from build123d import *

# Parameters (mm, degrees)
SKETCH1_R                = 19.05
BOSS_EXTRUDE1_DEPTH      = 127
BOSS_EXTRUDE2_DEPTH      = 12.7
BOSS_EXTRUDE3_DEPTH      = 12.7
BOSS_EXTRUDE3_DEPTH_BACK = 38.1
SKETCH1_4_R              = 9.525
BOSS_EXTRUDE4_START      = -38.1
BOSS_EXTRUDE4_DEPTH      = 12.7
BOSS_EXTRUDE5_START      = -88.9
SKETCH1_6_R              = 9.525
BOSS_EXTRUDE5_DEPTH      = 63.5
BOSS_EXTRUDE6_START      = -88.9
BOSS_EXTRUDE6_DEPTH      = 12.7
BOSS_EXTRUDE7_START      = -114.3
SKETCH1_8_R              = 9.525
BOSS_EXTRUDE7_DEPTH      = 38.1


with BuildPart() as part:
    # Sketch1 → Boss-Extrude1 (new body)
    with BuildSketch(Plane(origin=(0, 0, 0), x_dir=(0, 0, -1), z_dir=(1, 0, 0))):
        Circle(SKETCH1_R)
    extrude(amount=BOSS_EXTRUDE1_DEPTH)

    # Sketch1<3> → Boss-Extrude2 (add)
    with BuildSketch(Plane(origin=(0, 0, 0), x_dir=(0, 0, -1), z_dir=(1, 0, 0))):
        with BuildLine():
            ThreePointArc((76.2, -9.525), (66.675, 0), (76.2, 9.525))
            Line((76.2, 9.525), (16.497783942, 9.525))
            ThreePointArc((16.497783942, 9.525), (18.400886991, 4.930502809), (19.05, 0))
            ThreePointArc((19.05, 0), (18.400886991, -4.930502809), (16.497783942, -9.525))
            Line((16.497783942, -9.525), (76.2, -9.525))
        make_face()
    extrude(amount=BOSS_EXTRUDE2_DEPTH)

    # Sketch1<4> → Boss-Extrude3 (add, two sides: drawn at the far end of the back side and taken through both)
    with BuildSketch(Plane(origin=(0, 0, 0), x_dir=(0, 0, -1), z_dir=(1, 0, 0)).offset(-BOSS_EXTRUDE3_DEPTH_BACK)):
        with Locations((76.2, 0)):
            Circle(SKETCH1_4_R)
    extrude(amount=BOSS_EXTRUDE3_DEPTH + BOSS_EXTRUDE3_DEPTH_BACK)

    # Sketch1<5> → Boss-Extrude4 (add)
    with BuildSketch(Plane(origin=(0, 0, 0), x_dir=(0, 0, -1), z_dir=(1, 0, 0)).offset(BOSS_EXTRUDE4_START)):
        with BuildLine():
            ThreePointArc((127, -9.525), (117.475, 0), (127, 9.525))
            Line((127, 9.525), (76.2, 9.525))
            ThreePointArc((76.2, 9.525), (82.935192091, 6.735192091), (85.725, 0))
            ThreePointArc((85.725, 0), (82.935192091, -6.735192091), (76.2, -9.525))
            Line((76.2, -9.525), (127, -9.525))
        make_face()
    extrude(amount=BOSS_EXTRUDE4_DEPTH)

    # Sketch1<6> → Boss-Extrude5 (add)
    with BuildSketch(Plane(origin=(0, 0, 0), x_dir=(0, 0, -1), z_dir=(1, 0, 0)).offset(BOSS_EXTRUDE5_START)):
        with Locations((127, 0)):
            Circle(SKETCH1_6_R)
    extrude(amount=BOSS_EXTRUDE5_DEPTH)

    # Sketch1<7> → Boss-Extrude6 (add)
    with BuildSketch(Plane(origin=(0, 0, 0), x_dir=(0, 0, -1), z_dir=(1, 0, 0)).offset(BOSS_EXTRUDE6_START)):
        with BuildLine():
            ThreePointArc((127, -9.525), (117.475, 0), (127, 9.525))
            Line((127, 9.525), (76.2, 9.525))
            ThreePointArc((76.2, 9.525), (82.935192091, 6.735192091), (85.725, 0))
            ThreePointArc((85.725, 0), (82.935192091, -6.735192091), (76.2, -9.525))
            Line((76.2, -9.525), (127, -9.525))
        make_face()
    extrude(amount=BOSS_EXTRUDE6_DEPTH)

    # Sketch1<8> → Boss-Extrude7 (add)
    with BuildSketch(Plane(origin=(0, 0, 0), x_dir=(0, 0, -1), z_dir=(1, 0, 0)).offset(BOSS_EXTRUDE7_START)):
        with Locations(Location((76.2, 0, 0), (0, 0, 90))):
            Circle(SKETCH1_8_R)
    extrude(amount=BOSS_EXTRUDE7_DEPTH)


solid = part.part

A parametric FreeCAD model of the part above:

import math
import FreeCAD as App
import Part
import Sketcher

V = App.Vector
Q = App.Units.Quantity

doc = App.newDocument("Part")
body = doc.addObject("PartDesign::Body", "Body")

sketch1 = doc.addObject("Sketcher::SketchObject", "Sketch")
body.addObject(sketch1)
sketch1.AttachmentSupport = (doc.YZ_Plane, [""])
sketch1.MapMode = "FlatFace"
sketch1.addGeometry(Part.Circle(V(0, 0, 0), V(0, 0, 1), 19.05), False)
sketch1.addConstraint([
    Sketcher.Constraint("Coincident", 0, 3, -1, 1),
    Sketcher.Constraint("Diameter", 0, Q("1.5 in")),
])
pad1 = doc.addObject("PartDesign::Pad", "Pad")
body.addObject(pad1)
pad1.Profile = sketch1
pad1.Length = Q("5 in")

sketch2 = doc.addObject("Sketcher::SketchObject", "Sketch001")
body.addObject(sketch2)
sketch2.AttachmentSupport = (doc.YZ_Plane, [""])
sketch2.MapMode = "FlatFace"
sketch2.addGeometry([
    Part.ArcOfCircle(Part.Circle(V(0, -76.2, 0), V(0, 0, 1), 9.525), math.radians(0), math.radians(180)),
    Part.LineSegment(V(9.525, -76.2, 0), V(9.525, -16.497784, 0)),
    Part.ArcOfCircle(Part.Circle(V(0, 0, 0), V(0, 0, 1), 19.05), math.radians(-90), math.radians(-60)),
    Part.ArcOfCircle(Part.Circle(V(0, 0, 0), V(0, 0, 1), 19.05), math.radians(-120), math.radians(-90)),
    Part.LineSegment(V(-9.525, -16.497784, 0), V(-9.525, -76.2, 0)),
], False)
sketch2.addConstraint([
    Sketcher.Constraint("Tangent", 0, 1, 1, 1),
    Sketcher.Constraint("Coincident", 1, 2, 2, 2),
    Sketcher.Constraint("Tangent", 2, 1, 3, 2),
    Sketcher.Constraint("Coincident", 3, 1, 4, 1),
    Sketcher.Constraint("Tangent", 4, 2, 0, 2),
    Sketcher.Constraint("Vertical", 1),
    Sketcher.Constraint("Vertical", 4),
    Sketcher.Constraint("Coincident", 2, 3, -1, 1),
    Sketcher.Constraint("Equal", 2, 3),
    Sketcher.Constraint("PointOnObject", 0, 3, -2),
    Sketcher.Constraint("PointOnObject", 2, 1, -2),
    Sketcher.Constraint("Radius", 2, Q("0.75 in")),
    Sketcher.Constraint("DistanceY", 0, 3, -1, 1, Q("3 in")),
    Sketcher.Constraint("Radius", 0, Q("0.375 in")),
])
pad2 = doc.addObject("PartDesign::Pad", "Pad001")
body.addObject(pad2)
pad2.Profile = sketch2
pad2.Length = Q("0.5 in")

sketch3 = doc.addObject("Sketcher::SketchObject", "Sketch002")
body.addObject(sketch3)
sketch3.AttachmentSupport = (doc.YZ_Plane, [""])
sketch3.MapMode = "FlatFace"
sketch3.addGeometry(Part.Circle(V(0, -76.2, 0), V(0, 0, 1), 9.525), False)
sketch3.addConstraint([
    Sketcher.Constraint("PointOnObject", 0, 3, -2),
    Sketcher.Constraint("Diameter", 0, Q("0.75 in")),
    Sketcher.Constraint("DistanceY", 0, 3, -1, 1, Q("3 in")),
])
pad3 = doc.addObject("PartDesign::Pad", "Pad002")
body.addObject(pad3)
pad3.Profile = sketch3
pad3.Type = "TwoLengths"
pad3.Length = Q("0.5 in")
pad3.Length2 = Q("1.5 in")

sketch4 = doc.addObject("Sketcher::SketchObject", "Sketch003")
body.addObject(sketch4)
sketch4.AttachmentSupport = (doc.YZ_Plane, [""])
sketch4.MapMode = "FlatFace"
sketch4.AttachmentOffset = App.Placement(V(0, 0, -1.5 * 25.4), App.Rotation())
sketch4.addGeometry([
    Part.ArcOfCircle(Part.Circle(V(0, -127, 0), V(0, 0, 1), 9.525), math.radians(0), math.radians(180)),
    Part.LineSegment(V(9.525, -127, 0), V(9.525, -76.2, 0)),
    Part.ArcOfCircle(Part.Circle(V(0, -76.2, 0), V(0, 0, 1), 9.525), math.radians(-90), math.radians(0)),
    Part.ArcOfCircle(Part.Circle(V(0, -76.2, 0), V(0, 0, 1), 9.525), math.radians(180), math.radians(270)),
    Part.LineSegment(V(-9.525, -76.2, 0), V(-9.525, -127, 0)),
], False)
sketch4.addConstraint([
    Sketcher.Constraint("Tangent", 0, 1, 1, 1),
    Sketcher.Constraint("Tangent", 1, 2, 2, 2),
    Sketcher.Constraint("Tangent", 2, 1, 3, 2),
    Sketcher.Constraint("Tangent", 3, 1, 4, 1),
    Sketcher.Constraint("Tangent", 4, 2, 0, 2),
    Sketcher.Constraint("Vertical", 1),
    Sketcher.Constraint("Vertical", 4),
    Sketcher.Constraint("Equal", 0, 2),
    Sketcher.Constraint("PointOnObject", 0, 3, -2),
    Sketcher.Constraint("PointOnObject", 2, 1, -2),
    Sketcher.Constraint("DistanceY", 1, 1, 1, 2, Q("2 in")),
    Sketcher.Constraint("DistanceY", 0, 3, -1, 1, Q("5 in")),
    Sketcher.Constraint("Radius", 0, Q("0.375 in")),
])
pad4 = doc.addObject("PartDesign::Pad", "Pad003")
body.addObject(pad4)
pad4.Profile = sketch4
pad4.Length = Q("0.5 in")

sketch5 = doc.addObject("Sketcher::SketchObject", "Sketch004")
body.addObject(sketch5)
sketch5.AttachmentSupport = (doc.YZ_Plane, [""])
sketch5.MapMode = "FlatFace"
sketch5.AttachmentOffset = App.Placement(V(0, 0, -3.5 * 25.4), App.Rotation())
sketch5.addGeometry(Part.Circle(V(0, -127, 0), V(0, 0, 1), 9.525), False)
sketch5.addConstraint([
    Sketcher.Constraint("PointOnObject", 0, 3, -2),
    Sketcher.Constraint("Diameter", 0, Q("0.75 in")),
    Sketcher.Constraint("DistanceY", 0, 3, -1, 1, Q("5 in")),
])
pad5 = doc.addObject("PartDesign::Pad", "Pad004")
body.addObject(pad5)
pad5.Profile = sketch5
pad5.Length = Q("2.5 in")

sketch6 = doc.addObject("Sketcher::SketchObject", "Sketch005")
body.addObject(sketch6)
sketch6.AttachmentSupport = (doc.YZ_Plane, [""])
sketch6.MapMode = "FlatFace"
sketch6.AttachmentOffset = App.Placement(V(0, 0, -3.5 * 25.4), App.Rotation())
sketch6.addGeometry([
    Part.ArcOfCircle(Part.Circle(V(0, -127, 0), V(0, 0, 1), 9.525), math.radians(0), math.radians(180)),
    Part.LineSegment(V(9.525, -127, 0), V(9.525, -76.2, 0)),
    Part.ArcOfCircle(Part.Circle(V(0, -76.2, 0), V(0, 0, 1), 9.525), math.radians(-90), math.radians(0)),
    Part.ArcOfCircle(Part.Circle(V(0, -76.2, 0), V(0, 0, 1), 9.525), math.radians(180), math.radians(270)),
    Part.LineSegment(V(-9.525, -76.2, 0), V(-9.525, -127, 0)),
], False)
sketch6.addConstraint([
    Sketcher.Constraint("Tangent", 0, 1, 1, 1),
    Sketcher.Constraint("Tangent", 1, 2, 2, 2),
    Sketcher.Constraint("Tangent", 2, 1, 3, 2),
    Sketcher.Constraint("Tangent", 3, 1, 4, 1),
    Sketcher.Constraint("Tangent", 4, 2, 0, 2),
    Sketcher.Constraint("Vertical", 1),
    Sketcher.Constraint("Vertical", 4),
    Sketcher.Constraint("Equal", 0, 2),
    Sketcher.Constraint("PointOnObject", 0, 3, -2),
    Sketcher.Constraint("PointOnObject", 2, 1, -2),
    Sketcher.Constraint("DistanceY", 1, 1, 1, 2, Q("2 in")),
    Sketcher.Constraint("DistanceY", 0, 3, -1, 1, Q("5 in")),
    Sketcher.Constraint("Radius", 0, Q("0.375 in")),
])
pad6 = doc.addObject("PartDesign::Pad", "Pad005")
body.addObject(pad6)
pad6.Profile = sketch6
pad6.Length = Q("0.5 in")

sketch7 = doc.addObject("Sketcher::SketchObject", "Sketch006")
body.addObject(sketch7)
sketch7.AttachmentSupport = (doc.YZ_Plane, [""])
sketch7.MapMode = "FlatFace"
sketch7.AttachmentOffset = App.Placement(V(0, 0, -4.5 * 25.4), App.Rotation())
sketch7.addGeometry(Part.Circle(V(0, -76.2, 0), V(0, 0, 1), 9.525), False)
sketch7.addConstraint([
    Sketcher.Constraint("PointOnObject", 0, 3, -2),
    Sketcher.Constraint("Diameter", 0, Q("0.75 in")),
    Sketcher.Constraint("DistanceY", 0, 3, -1, 1, Q("3 in")),
])
pad7 = doc.addObject("PartDesign::Pad", "Pad006")
body.addObject(pad7)
pad7.Profile = sketch7
pad7.Length = Q("1.5 in")

doc.recompute()
